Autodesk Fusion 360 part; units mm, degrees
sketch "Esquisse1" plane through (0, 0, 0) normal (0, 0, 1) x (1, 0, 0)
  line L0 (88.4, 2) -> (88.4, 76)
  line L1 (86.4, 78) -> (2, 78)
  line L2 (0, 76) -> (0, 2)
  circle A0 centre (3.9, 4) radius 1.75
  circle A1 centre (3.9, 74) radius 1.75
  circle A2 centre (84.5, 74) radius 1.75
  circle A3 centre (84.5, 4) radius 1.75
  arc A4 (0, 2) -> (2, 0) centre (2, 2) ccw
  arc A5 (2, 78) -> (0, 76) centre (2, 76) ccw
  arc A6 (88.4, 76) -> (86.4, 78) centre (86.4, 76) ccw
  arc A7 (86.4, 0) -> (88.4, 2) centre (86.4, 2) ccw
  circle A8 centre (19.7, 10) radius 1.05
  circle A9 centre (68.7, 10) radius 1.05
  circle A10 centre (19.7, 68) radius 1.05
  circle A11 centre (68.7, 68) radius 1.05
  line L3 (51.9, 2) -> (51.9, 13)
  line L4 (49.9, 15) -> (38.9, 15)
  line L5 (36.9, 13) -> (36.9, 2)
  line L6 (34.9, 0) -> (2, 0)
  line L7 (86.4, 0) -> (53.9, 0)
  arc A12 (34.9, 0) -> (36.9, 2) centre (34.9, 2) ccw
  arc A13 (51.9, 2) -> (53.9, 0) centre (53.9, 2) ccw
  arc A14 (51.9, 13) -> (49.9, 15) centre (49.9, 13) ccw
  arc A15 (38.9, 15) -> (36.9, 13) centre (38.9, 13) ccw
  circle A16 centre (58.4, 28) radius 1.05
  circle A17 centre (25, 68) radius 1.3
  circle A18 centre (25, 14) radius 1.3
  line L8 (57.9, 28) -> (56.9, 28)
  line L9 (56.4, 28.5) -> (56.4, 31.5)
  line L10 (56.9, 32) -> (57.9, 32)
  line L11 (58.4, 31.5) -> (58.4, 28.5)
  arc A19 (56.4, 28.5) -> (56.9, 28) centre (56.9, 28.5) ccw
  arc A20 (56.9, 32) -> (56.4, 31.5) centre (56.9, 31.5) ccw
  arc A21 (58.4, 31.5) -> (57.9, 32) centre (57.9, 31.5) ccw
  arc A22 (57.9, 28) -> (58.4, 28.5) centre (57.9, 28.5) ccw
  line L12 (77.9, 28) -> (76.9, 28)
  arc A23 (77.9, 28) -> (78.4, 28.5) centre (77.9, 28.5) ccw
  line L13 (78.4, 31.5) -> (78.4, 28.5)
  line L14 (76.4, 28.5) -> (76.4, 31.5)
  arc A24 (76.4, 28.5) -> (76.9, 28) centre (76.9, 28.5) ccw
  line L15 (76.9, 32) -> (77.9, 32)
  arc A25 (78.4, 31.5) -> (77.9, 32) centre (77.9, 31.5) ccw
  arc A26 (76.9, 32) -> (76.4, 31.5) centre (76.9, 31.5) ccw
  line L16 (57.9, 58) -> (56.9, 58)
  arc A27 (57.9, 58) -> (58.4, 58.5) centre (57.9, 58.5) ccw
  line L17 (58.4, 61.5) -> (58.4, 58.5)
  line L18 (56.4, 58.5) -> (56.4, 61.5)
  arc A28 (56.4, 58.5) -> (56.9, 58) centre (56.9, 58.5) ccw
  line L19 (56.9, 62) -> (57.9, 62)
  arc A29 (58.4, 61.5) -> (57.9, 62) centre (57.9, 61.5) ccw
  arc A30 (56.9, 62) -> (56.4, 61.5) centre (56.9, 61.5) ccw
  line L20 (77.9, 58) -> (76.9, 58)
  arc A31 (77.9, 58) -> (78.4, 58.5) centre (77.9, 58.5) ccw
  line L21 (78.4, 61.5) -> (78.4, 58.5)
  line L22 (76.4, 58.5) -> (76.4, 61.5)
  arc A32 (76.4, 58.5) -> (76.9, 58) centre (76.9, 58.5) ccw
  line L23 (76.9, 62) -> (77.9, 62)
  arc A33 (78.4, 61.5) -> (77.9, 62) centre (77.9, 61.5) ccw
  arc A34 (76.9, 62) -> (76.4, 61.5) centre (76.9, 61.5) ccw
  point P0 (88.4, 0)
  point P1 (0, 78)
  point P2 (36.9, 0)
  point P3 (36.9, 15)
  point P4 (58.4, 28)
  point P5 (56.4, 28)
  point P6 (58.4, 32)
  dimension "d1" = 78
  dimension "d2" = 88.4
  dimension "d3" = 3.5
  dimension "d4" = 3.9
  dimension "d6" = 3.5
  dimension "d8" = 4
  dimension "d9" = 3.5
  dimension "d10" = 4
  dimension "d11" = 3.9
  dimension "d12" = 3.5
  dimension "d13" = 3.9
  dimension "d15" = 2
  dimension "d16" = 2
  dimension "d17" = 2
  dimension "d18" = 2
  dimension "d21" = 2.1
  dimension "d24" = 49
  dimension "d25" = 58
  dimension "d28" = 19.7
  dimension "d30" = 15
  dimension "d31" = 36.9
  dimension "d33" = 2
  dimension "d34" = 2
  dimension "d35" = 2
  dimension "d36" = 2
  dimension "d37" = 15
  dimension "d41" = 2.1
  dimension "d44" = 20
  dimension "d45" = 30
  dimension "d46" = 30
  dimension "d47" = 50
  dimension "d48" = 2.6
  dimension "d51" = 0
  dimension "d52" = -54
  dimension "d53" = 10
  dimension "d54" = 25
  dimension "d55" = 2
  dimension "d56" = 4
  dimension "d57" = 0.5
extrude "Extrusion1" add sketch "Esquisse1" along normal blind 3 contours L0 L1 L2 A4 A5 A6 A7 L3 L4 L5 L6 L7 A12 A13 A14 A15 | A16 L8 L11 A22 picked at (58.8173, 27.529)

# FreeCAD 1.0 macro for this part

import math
import FreeCAD as App
import Part
import Sketcher

V = App.Vector
Q = App.Units.Quantity

doc = App.newDocument("Part")
body = doc.addObject("PartDesign::Body", "Body")

sketch1 = body.newObject("Sketcher::SketchObject", "Sketch")
sketch1.AttachmentSupport = (doc.getObject("XY_Plane"), [""])
sketch1.MapMode = "FlatFace"
sketch1.addGeometry([
    Part.ArcOfCircle(Part.Circle(V(86.4, 2, 0), V(0, 0, 1), 2), math.radians(-90), math.radians(0)),
    Part.LineSegment(V(88.4, 2, 0), V(88.4, 76, 0)),
    Part.ArcOfCircle(Part.Circle(V(86.4, 76, 0), V(0, 0, 1), 2), math.radians(0), math.radians(90)),
    Part.LineSegment(V(86.4, 78, 0), V(2, 78, 0)),
    Part.ArcOfCircle(Part.Circle(V(2, 76, 0), V(0, 0, 1), 2), math.radians(90), math.radians(180)),
    Part.LineSegment(V(0, 76, 0), V(0, 2, 0)),
    Part.ArcOfCircle(Part.Circle(V(2, 2, 0), V(0, 0, 1), 2), math.radians(180), math.radians(270)),
    Part.LineSegment(V(2, 0, 0), V(34.9, 0, 0)),
    Part.ArcOfCircle(Part.Circle(V(34.9, 2, 0), V(0, 0, 1), 2), math.radians(-90), math.radians(0)),
    Part.LineSegment(V(36.9, 2, 0), V(36.9, 13, 0)),
    Part.ArcOfCircle(Part.Circle(V(38.9, 13, 0), V(0, 0, 1), 2), math.radians(90), math.radians(180)),
    Part.LineSegment(V(38.9, 15, 0), V(49.9, 15, 0)),
    Part.ArcOfCircle(Part.Circle(V(49.9, 13, 0), V(0, 0, 1), 2), math.radians(0), math.radians(90)),
    Part.LineSegment(V(51.9, 13, 0), V(51.9, 2, 0)),
    Part.ArcOfCircle(Part.Circle(V(53.9, 2, 0), V(0, 0, 1), 2), math.radians(180), math.radians(270)),
    Part.LineSegment(V(53.9, 0, 0), V(86.4, 0, 0)),
    Part.Circle(V(3.9, 4, 0), V(0, 0, 1), 1.8),
    Part.Circle(V(19.7, 10, 0), V(0, 0, 1), 1.1),
    Part.Circle(V(25, 14, 0), V(0, 0, 1), 1.3),
    Part.Circle(V(84.5, 4, 0), V(0, 0, 1), 1.8),
    Part.Circle(V(68.7, 10, 0), V(0, 0, 1), 1.1),
    Part.LineSegment(V(58.4, 31.5, 0), V(58.4, 28.5, 0)),
    Part.ArcOfCircle(Part.Circle(V(57.9, 28.5, 0), V(0, 0, 1), 0.5), math.radians(-90), math.radians(0)),
    Part.LineSegment(V(57.9, 28, 0), V(56.9, 28, 0)),
    Part.ArcOfCircle(Part.Circle(V(56.9, 28.5, 0), V(0, 0, 1), 0.5), math.radians(180), math.radians(270)),
    Part.LineSegment(V(56.4, 28.5, 0), V(56.4, 31.5, 0)),
    Part.ArcOfCircle(Part.Circle(V(56.9, 31.5, 0), V(0, 0, 1), 0.5), math.radians(90), math.radians(180)),
    Part.LineSegment(V(56.9, 32, 0), V(57.9, 32, 0)),
    Part.ArcOfCircle(Part.Circle(V(57.9, 31.5, 0), V(0, 0, 1), 0.5), math.radians(0), math.radians(90)),
    Part.ArcOfCircle(Part.Circle(V(77.9, 28.5, 0), V(0, 0, 1), 0.5), math.radians(-90), math.radians(0)),
    Part.LineSegment(V(77.9, 28, 0), V(76.9, 28, 0)),
    Part.ArcOfCircle(Part.Circle(V(76.9, 28.5, 0), V(0, 0, 1), 0.5), math.radians(180), math.radians(270)),
    Part.LineSegment(V(76.4, 28.5, 0), V(76.4, 31.5, 0)),
    Part.ArcOfCircle(Part.Circle(V(76.9, 31.5, 0), V(0, 0, 1), 0.5), math.radians(90), math.radians(180)),
    Part.LineSegment(V(76.9, 32, 0), V(77.9, 32, 0)),
    Part.ArcOfCircle(Part.Circle(V(77.9, 31.5, 0), V(0, 0, 1), 0.5), math.radians(0), math.radians(90)),
    Part.LineSegment(V(78.4, 31.5, 0), V(78.4, 28.5, 0)),
    Part.Circle(V(19.7, 68, 0), V(0, 0, 1), 1.1),
    Part.Circle(V(3.9, 74, 0), V(0, 0, 1), 1.8),
    Part.Circle(V(25, 68, 0), V(0, 0, 1), 1.3),
    Part.ArcOfCircle(Part.Circle(V(57.9, 58.5, 0), V(0, 0, 1), 0.5), math.radians(-90), math.radians(0)),
    Part.LineSegment(V(57.9, 58, 0), V(56.9, 58, 0)),
    Part.ArcOfCircle(Part.Circle(V(56.9, 58.5, 0), V(0, 0, 1), 0.5), math.radians(180), math.radians(270)),
    Part.LineSegment(V(56.4, 58.5, 0), V(56.4, 61.5, 0)),
    Part.ArcOfCircle(Part.Circle(V(56.9, 61.5, 0), V(0, 0, 1), 0.5), math.radians(90), math.radians(180)),
    Part.LineSegment(V(56.9, 62, 0), V(57.9, 62, 0)),
    Part.ArcOfCircle(Part.Circle(V(57.9, 61.5, 0), V(0, 0, 1), 0.5), math.radians(0), math.radians(90)),
    Part.LineSegment(V(58.4, 61.5, 0), V(58.4, 58.5, 0)),
    Part.Circle(V(68.7, 68, 0), V(0, 0, 1), 1.1),
    Part.ArcOfCircle(Part.Circle(V(77.9, 58.5, 0), V(0, 0, 1), 0.5), math.radians(-90), math.radians(0)),
    Part.LineSegment(V(77.9, 58, 0), V(76.9, 58, 0)),
    Part.ArcOfCircle(Part.Circle(V(76.9, 58.5, 0), V(0, 0, 1), 0.5), math.radians(180), math.radians(270)),
    Part.LineSegment(V(76.4, 58.5, 0), V(76.4, 61.5, 0)),
    Part.ArcOfCircle(Part.Circle(V(76.9, 61.5, 0), V(0, 0, 1), 0.5), math.radians(90), math.radians(180)),
    Part.LineSegment(V(76.9, 62, 0), V(77.9, 62, 0)),
    Part.ArcOfCircle(Part.Circle(V(77.9, 61.5, 0), V(0, 0, 1), 0.5), math.radians(0), math.radians(90)),
    Part.LineSegment(V(78.4, 61.5, 0), V(78.4, 58.5, 0)),
    Part.Circle(V(84.5, 74, 0), V(0, 0, 1), 1.8),
], False)
sketch1.addConstraint([
    Sketcher.Constraint("Tangent", 0, 2, 1, 1),
    Sketcher.Constraint("Tangent", 1, 2, 2, 1),
    Sketcher.Constraint("Tangent", 2, 2, 3, 1),
    Sketcher.Constraint("Tangent", 3, 2, 4, 1),
    Sketcher.Constraint("Tangent", 4, 2, 5, 1),
    Sketcher.Constraint("Tangent", 5, 2, 6, 1),
    Sketcher.Constraint("Tangent", 6, 2, 7, 1),
    Sketcher.Constraint("Tangent", 7, 2, 8, 1),
    Sketcher.Constraint("Tangent", 8, 2, 9, 1),
    Sketcher.Constraint("Tangent", 9, 2, 10, 2),
    Sketcher.Constraint("Tangent", 10, 1, 11, 1),
    Sketcher.Constraint("Tangent", 11, 2, 12, 2),
    Sketcher.Constraint("Tangent", 12, 1, 13, 1),
    Sketcher.Constraint("Tangent", 13, 2, 14, 1),
    Sketcher.Constraint("Tangent", 14, 2, 15, 1),
    Sketcher.Constraint("Tangent", 15, 2, 0, 1),
    Sketcher.Constraint("Tangent", 21, 2, 22, 2),
    Sketcher.Constraint("Tangent", 22, 1, 23, 1),
    Sketcher.Constraint("Tangent", 23, 2, 24, 2),
    Sketcher.Constraint("Tangent", 24, 1, 25, 1),
    Sketcher.Constraint("Tangent", 25, 2, 26, 2),
    Sketcher.Constraint("Tangent", 26, 1, 27, 1),
    Sketcher.Constraint("Tangent", 27, 2, 28, 2),
    Sketcher.Constraint("Tangent", 28, 1, 21, 1),
    Sketcher.Constraint("Tangent", 29, 1, 30, 1),
    Sketcher.Constraint("Tangent", 30, 2, 31, 2),
    Sketcher.Constraint("Tangent", 31, 1, 32, 1),
    Sketcher.Constraint("Tangent", 32, 2, 33, 2),
    Sketcher.Constraint("Tangent", 33, 1, 34, 1),
    Sketcher.Constraint("Tangent", 34, 2, 35, 2),
    Sketcher.Constraint("Tangent", 35, 1, 36, 1),
    Sketcher.Constraint("Tangent", 36, 2, 29, 2),
    Sketcher.Constraint("Tangent", 40, 1, 41, 1),
    Sketcher.Constraint("Tangent", 41, 2, 42, 2),
    Sketcher.Constraint("Tangent", 42, 1, 43, 1),
    Sketcher.Constraint("Tangent", 43, 2, 44, 2),
    Sketcher.Constraint("Tangent", 44, 1, 45, 1),
    Sketcher.Constraint("Tangent", 45, 2, 46, 2),
    Sketcher.Constraint("Tangent", 46, 1, 47, 1),
    Sketcher.Constraint("Tangent", 47, 2, 40, 2),
    Sketcher.Constraint("Tangent", 49, 1, 50, 1),
    Sketcher.Constraint("Tangent", 50, 2, 51, 2),
    Sketcher.Constraint("Tangent", 51, 1, 52, 1),
    Sketcher.Constraint("Tangent", 52, 2, 53, 2),
    Sketcher.Constraint("Tangent", 53, 1, 54, 1),
    Sketcher.Constraint("Tangent", 54, 2, 55, 2),
    Sketcher.Constraint("Tangent", 55, 1, 56, 1),
    Sketcher.Constraint("Tangent", 56, 2, 49, 2),
    Sketcher.Constraint("Vertical", 1),
    Sketcher.Constraint("Horizontal", 3),
    Sketcher.Constraint("Vertical", 5),
    Sketcher.Constraint("Horizontal", 7),
    Sketcher.Constraint("Vertical", 9),
    Sketcher.Constraint("Horizontal", 11),
    Sketcher.Constraint("Vertical", 13),
    Sketcher.Constraint("Horizontal", 15),
    Sketcher.Constraint("Vertical", 21),
    Sketcher.Constraint("Horizontal", 23),
    Sketcher.Constraint("Vertical", 25),
    Sketcher.Constraint("Horizontal", 27),
    Sketcher.Constraint("Horizontal", 30),
    Sketcher.Constraint("Vertical", 32),
    Sketcher.Constraint("Horizontal", 34),
    Sketcher.Constraint("Vertical", 36),
    Sketcher.Constraint("Horizontal", 41),
    Sketcher.Constraint("Vertical", 43),
    Sketcher.Constraint("Horizontal", 45),
    Sketcher.Constraint("Vertical", 47),
    Sketcher.Constraint("Horizontal", 50),
    Sketcher.Constraint("Vertical", 52),
    Sketcher.Constraint("Horizontal", 54),
    Sketcher.Constraint("Vertical", 56),
    Sketcher.Constraint("Equal", 0, 2),
    Sketcher.Constraint("Equal", 2, 4),
    Sketcher.Constraint("Equal", 4, 6),
    Sketcher.Constraint("Equal", 6, 8),
    Sketcher.Constraint("Equal", 8, 10),
    Sketcher.Constraint("Equal", 10, 12),
    Sketcher.Constraint("Equal", 12, 14),
    Sketcher.Constraint("Equal", 16, 19),
    Sketcher.Constraint("Equal", 17, 20),
    Sketcher.Constraint("Equal", 22, 24),
    Sketcher.Constraint("Equal", 24, 26),
    Sketcher.Constraint("Equal", 26, 28),
    Sketcher.Constraint("Equal", 28, 29),
    Sketcher.Constraint("Equal", 29, 31),
    Sketcher.Constraint("Equal", 31, 33),
    Sketcher.Constraint("Equal", 33, 35),
    Sketcher.Constraint("Equal", 20, 37),
    Sketcher.Constraint("Equal", 19, 38),
    Sketcher.Constraint("Equal", 18, 39),
    Sketcher.Constraint("Equal", 35, 40),
    Sketcher.Constraint("Equal", 40, 42),
    Sketcher.Constraint("Equal", 42, 44),
    Sketcher.Constraint("Equal", 44, 46),
    Sketcher.Constraint("Equal", 37, 48),
    Sketcher.Constraint("Equal", 46, 49),
    Sketcher.Constraint("Equal", 49, 51),
    Sketcher.Constraint("Equal", 51, 53),
    Sketcher.Constraint("Equal", 53, 55),
    Sketcher.Constraint("Equal", 38, 57),
    Sketcher.Constraint("PointOnObject", 4, 2, -2),
    Sketcher.Constraint("PointOnObject", 6, 2, -1),
    Sketcher.Constraint("PointOnObject", 14, 2, -1),
    Sketcher.Constraint("Horizontal", 16, 3, 19, 3),
    Sketcher.Constraint("Horizontal", 17, 3, 20, 3),
    Sketcher.Constraint("Horizontal", 24, 3, 29, 3),
    Sketcher.Constraint("Horizontal", 28, 3, 33, 3),
    Sketcher.Constraint("Horizontal", 37, 3, 39, 3),
    Sketcher.Constraint("Horizontal", 39, 3, 48, 3),
    Sketcher.Constraint("Horizontal", 42, 3, 49, 3),
    Sketcher.Constraint("Horizontal", 46, 3, 53, 3),
    Sketcher.Constraint("Horizontal", 38, 3, 57, 3),
    Sketcher.Constraint("Vertical", 17, 3, 37, 3),
    Sketcher.Constraint("Vertical", 16, 3, 38, 3),
    Sketcher.Constraint("Vertical", 18, 3, 39, 3),
    Sketcher.Constraint("Vertical", 28, 3, 40, 3),
    Sketcher.Constraint("Vertical", 26, 3, 42, 3),
    Sketcher.Constraint("Vertical", 20, 3, 48, 3),
    Sketcher.Constraint("Vertical", 35, 3, 49, 3),
    Sketcher.Constraint("Vertical", 33, 3, 51, 3),
    Sketcher.Constraint("Vertical", 19, 3, 57, 3),
    Sketcher.Constraint("Equal", 27, 30),
    Sketcher.Constraint("Equal", 11, 9),
    Sketcher.Constraint("Equal", 36, 43),
    Sketcher.Constraint("Radius", 0, Q("2 mm")),
    Sketcher.Constraint("Diameter", 16, Q("3.5 mm")),
    Sketcher.Constraint("Diameter", 17, Q("2.1 mm")),
    Sketcher.Constraint("Diameter", 18, Q("2.6 mm")),
    Sketcher.Constraint("Radius", 22, Q("0.5 mm")),
    Sketcher.Constraint("DistanceY", -1, 1, 16, 3, Q("4 mm")),
    Sketcher.Constraint("DistanceY", -1, 1, 17, 3, Q("10 mm")),
    Sketcher.Constraint("DistanceX", -1, 1, 18, 3, Q("25 mm")),
    Sketcher.Constraint("DistanceY", -1, 1, 2, 2, Q("78 mm")),
    Sketcher.Constraint("DistanceY", -1, 1, 10, 1, Q("15 mm")),
    Sketcher.Constraint("DistanceY", -1, 1, 40, 1, Q("58 mm")),
    Sketcher.Constraint("DistanceX", -1, 1, 16, 3, Q("3.9 mm")),
    Sketcher.Constraint("DistanceX", -1, 1, 17, 3, Q("19.7 mm")),
    Sketcher.Constraint("DistanceX", -1, 1, 0, 2, Q("88.4 mm")),
    Sketcher.Constraint("DistanceX", -1, 1, 8, 2, Q("36.9 mm")),
    Sketcher.Constraint("DistanceX", 23, 2, 23, 1, Q("1 mm")),
    Sketcher.Constraint("DistanceY", 21, 2, 21, 1, Q("3 mm")),
    Sketcher.Constraint("DistanceY", -1, 1, 18, 3, Q("14 mm")),
    Sketcher.Constraint("DistanceY", -1, 1, 37, 3, Q("68 mm")),
    Sketcher.Constraint("DistanceY", -1, 1, 38, 3, Q("74 mm")),
    Sketcher.Constraint("DistanceY", -1, 1, 22, 1, Q("28 mm")),
    Sketcher.Constraint("DistanceX", -1, 1, 19, 3, Q("84.5 mm")),
    Sketcher.Constraint("DistanceX", -1, 1, 20, 3, Q("68.7 mm")),
    Sketcher.Constraint("DistanceX", -1, 1, 22, 3, Q("57.9 mm")),
    Sketcher.Constraint("DistanceX", -1, 1, 29, 3, Q("77.9 mm")),
])
pad1 = body.newObject("PartDesign::Pad", "Pad")
pad1.Profile = sketch1
pad1.Length = 3

doc.recompute()
